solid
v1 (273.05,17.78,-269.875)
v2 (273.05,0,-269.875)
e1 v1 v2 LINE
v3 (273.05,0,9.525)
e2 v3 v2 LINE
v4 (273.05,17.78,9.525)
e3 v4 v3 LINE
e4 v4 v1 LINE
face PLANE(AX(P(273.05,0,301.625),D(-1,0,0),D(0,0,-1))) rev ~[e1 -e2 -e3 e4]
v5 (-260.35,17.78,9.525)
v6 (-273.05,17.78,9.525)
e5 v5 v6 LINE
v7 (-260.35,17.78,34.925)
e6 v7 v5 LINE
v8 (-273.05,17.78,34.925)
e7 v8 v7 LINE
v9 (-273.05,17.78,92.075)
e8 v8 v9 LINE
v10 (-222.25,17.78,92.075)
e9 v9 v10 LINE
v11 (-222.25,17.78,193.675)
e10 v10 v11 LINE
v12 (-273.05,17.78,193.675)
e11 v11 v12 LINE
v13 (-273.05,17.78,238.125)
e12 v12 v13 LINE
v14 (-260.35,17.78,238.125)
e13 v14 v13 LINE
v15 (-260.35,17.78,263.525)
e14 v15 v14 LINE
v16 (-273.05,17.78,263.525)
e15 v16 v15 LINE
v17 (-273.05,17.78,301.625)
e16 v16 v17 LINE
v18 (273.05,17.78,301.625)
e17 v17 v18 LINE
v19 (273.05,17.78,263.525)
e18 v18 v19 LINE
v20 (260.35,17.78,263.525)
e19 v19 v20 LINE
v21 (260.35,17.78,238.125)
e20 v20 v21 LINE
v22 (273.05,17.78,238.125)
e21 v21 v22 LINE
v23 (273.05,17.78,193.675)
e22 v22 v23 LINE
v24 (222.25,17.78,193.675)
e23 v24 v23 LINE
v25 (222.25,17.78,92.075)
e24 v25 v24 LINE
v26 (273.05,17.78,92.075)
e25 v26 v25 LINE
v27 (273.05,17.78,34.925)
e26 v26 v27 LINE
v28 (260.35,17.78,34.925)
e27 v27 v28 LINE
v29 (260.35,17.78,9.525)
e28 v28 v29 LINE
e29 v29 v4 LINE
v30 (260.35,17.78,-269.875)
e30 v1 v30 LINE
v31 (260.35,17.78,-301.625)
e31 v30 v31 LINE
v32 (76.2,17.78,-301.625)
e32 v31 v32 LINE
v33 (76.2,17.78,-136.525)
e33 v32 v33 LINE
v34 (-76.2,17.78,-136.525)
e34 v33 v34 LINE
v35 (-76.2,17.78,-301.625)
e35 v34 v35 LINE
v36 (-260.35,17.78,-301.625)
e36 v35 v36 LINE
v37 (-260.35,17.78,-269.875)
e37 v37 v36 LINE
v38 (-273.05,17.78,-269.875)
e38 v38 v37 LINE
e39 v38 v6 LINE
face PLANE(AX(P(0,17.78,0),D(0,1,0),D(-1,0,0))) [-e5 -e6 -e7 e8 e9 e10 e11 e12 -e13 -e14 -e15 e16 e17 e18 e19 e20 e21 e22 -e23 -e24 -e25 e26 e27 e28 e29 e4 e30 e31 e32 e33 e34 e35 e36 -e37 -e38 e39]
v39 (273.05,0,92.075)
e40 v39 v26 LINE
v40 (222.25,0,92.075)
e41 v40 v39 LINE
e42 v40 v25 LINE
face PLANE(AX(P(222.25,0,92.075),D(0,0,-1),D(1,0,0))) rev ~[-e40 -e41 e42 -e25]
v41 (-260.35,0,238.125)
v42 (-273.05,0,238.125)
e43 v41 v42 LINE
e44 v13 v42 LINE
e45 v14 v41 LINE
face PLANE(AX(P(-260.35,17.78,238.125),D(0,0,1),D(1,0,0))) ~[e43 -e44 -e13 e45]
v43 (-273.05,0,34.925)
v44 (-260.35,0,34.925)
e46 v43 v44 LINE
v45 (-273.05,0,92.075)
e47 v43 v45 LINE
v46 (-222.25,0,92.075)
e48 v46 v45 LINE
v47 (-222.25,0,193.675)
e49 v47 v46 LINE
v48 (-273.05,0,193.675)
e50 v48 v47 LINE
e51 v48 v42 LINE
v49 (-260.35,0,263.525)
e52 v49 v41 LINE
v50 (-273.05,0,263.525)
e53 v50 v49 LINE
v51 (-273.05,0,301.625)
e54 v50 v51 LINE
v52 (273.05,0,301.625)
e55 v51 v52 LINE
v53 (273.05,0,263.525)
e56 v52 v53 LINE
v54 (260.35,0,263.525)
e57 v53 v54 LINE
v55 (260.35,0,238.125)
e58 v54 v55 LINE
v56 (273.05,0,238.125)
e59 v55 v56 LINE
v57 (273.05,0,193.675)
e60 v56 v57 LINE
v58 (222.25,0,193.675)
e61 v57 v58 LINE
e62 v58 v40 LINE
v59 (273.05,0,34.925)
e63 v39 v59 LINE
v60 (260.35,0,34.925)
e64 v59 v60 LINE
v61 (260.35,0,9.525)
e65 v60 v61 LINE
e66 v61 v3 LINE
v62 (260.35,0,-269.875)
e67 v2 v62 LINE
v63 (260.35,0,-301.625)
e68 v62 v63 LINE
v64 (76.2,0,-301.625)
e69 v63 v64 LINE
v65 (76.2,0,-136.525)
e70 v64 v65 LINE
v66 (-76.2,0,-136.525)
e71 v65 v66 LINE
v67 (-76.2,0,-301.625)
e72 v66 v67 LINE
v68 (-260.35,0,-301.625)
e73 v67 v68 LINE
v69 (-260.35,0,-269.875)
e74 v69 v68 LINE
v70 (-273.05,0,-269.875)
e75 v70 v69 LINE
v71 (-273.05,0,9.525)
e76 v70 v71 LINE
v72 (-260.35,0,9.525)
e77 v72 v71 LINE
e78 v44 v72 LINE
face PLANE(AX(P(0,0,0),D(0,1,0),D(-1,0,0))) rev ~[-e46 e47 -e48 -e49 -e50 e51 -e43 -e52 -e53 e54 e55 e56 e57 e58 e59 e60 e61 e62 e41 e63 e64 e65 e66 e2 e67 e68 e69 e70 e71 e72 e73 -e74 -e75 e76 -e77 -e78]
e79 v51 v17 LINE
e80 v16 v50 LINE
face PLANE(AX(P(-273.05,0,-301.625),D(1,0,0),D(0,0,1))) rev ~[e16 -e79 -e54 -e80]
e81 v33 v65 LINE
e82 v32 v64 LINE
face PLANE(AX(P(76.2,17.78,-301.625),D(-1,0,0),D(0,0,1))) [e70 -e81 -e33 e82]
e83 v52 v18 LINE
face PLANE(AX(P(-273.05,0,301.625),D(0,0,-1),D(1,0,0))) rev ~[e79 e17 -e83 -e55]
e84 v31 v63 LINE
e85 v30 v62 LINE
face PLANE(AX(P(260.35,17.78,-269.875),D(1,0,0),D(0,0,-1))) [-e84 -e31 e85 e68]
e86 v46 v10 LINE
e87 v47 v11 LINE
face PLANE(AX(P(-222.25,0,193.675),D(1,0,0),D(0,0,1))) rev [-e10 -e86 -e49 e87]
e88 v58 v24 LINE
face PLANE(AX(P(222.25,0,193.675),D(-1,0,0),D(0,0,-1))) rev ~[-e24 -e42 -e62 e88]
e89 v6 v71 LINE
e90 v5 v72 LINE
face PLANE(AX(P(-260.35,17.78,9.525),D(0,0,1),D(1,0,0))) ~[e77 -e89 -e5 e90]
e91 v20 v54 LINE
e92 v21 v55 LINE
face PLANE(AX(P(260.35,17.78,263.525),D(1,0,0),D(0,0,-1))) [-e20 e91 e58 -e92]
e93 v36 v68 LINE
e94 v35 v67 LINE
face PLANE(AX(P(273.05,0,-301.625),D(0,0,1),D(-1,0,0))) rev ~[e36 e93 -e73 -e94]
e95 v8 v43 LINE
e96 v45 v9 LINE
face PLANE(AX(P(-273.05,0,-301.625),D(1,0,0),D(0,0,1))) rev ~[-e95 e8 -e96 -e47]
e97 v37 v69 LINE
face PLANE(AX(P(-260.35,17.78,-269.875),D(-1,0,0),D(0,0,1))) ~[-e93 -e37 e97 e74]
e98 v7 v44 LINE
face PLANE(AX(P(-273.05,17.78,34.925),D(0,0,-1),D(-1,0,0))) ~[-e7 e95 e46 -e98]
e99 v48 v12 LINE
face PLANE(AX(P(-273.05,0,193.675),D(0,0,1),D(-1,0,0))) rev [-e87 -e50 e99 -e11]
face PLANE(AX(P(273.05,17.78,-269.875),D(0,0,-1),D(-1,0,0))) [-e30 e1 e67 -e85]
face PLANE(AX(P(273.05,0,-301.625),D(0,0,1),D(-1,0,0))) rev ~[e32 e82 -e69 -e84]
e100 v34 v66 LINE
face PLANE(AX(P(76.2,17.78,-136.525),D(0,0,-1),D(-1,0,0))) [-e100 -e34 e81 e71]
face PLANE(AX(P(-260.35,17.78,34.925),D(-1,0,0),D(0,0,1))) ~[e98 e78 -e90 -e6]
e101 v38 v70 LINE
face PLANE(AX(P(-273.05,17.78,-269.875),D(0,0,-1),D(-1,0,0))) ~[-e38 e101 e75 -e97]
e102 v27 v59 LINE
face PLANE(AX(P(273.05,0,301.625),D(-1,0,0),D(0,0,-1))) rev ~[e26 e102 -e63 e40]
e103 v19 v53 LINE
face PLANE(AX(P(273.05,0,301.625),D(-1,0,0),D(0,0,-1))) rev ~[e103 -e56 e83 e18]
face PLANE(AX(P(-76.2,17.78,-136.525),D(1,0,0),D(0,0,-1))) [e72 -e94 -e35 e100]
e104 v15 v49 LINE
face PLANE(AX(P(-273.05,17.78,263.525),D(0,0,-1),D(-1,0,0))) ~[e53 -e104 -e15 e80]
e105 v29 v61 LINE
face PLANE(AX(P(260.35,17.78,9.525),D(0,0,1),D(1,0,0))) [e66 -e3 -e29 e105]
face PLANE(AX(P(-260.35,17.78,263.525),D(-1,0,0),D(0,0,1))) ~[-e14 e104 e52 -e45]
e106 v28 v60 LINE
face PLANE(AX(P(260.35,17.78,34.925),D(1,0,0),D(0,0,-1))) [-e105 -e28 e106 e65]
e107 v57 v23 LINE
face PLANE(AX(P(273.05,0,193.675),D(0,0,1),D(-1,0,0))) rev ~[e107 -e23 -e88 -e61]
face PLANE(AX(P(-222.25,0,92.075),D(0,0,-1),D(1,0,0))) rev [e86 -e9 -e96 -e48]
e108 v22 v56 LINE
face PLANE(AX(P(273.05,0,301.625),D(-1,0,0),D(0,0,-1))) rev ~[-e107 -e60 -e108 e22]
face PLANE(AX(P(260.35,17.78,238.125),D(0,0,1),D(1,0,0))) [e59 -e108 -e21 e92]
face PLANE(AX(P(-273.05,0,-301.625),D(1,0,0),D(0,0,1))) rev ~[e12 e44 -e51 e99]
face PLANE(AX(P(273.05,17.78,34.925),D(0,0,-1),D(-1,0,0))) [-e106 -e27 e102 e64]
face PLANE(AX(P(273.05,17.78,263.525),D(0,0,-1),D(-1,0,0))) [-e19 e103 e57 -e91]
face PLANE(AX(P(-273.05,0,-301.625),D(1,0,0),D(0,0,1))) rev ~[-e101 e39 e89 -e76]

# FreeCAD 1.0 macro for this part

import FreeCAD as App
import Part
import Sketcher

V = App.Vector
Q = App.Units.Quantity


def add_polygon(sketch, points):
    """Adds a closed chain of lines whose ends are joined by coincident constraints."""
    first, n = sketch.GeometryCount, len(points)
    for a, b in zip(points, points[1:] + points[:1]):
        sketch.addGeometry(Part.LineSegment(App.Vector(*a, 0), App.Vector(*b, 0)), False)
    for i in range(n):
        sketch.addConstraint(Sketcher.Constraint("Coincident", first + i, 2, first + (i + 1) % n, 1))

doc = App.newDocument("Part")
body = doc.addObject("PartDesign::Body", "Body")

# Sketch on XZ plane
sketch1 = doc.addObject("Sketcher::SketchObject", "Sketch")
body.addObject(sketch1)
sketch1.AttachmentSupport = (doc.XZ_Plane, [""])
sketch1.MapMode = "FlatFace"
add_polygon(sketch1, [(-273.05, 301.625), (273.05, 301.625), (273.05, -301.625), (-273.05, -301.625)])  # lines 0-3
sketch1.addConstraint([
    Sketcher.Constraint("Horizontal", 0),
    Sketcher.Constraint("Vertical", 1),
    Sketcher.Constraint("Horizontal", 2),
    Sketcher.Constraint("Vertical", 3),
    Sketcher.Constraint("Symmetric", 0, 2, 2, 2, -1, 1),
    Sketcher.Constraint("DistanceX", 0, 1, 0, 2, Q("21.5 in")),
    Sketcher.Constraint("DistanceY", 1, 2, 1, 1, Q("23.75 in")),
])
pad1 = doc.addObject("PartDesign::Pad", "Pad")
body.addObject(pad1)
pad1.Profile = sketch1
pad1.Length = Q("0.7 in")
pad1.Reversed = True

# Sketch on XZ plane
sketch2 = doc.addObject("Sketcher::SketchObject", "Sketch001")
body.addObject(sketch2)
sketch2.AttachmentSupport = (doc.XZ_Plane, [""])
sketch2.MapMode = "FlatFace"
add_polygon(sketch2, [(273.05, 92.075), (273.05, 193.675), (222.25, 193.675), (222.25, 92.075)])  # lines 0-3
sketch2.addConstraint([
    Sketcher.Constraint("Vertical", 0),
    Sketcher.Constraint("Horizontal", 1),
    Sketcher.Constraint("Vertical", 2),
    Sketcher.Constraint("Horizontal", 3),
    Sketcher.Constraint("DistanceX", 1, 2, 1, 1, Q("2 in")),
    Sketcher.Constraint("DistanceY", 0, 1, 0, 2, Q("4 in")),
    Sketcher.Constraint("DistanceX", -1, 1, 0, 2, Q("10.75 in")),
    Sketcher.Constraint("DistanceY", -1, 1, 0, 2, Q("7.625 in")),
])
pocket1 = doc.addObject("PartDesign::Pocket", "Pocket")
body.addObject(pocket1)
pocket1.Profile = sketch2
pocket1.Type = "ThroughAll"
doc.recompute()

mirrored = doc.addObject("PartDesign::Mirrored", "Mirrored")
body.addObject(mirrored)
mirrored.Originals = [pocket1]
mirrored.MirrorPlane = (doc.YZ_Plane, [""])
body.Tip = mirrored

# Sketch on XZ plane
sketch3 = doc.addObject("Sketcher::SketchObject", "Sketch002")
body.addObject(sketch3)
sketch3.AttachmentSupport = (doc.XZ_Plane, [""])
sketch3.MapMode = "FlatFace"
sketch3.AttachmentOffset = App.Placement(V(0, 0, -0.7 * 25.4), App.Rotation())
add_polygon(sketch3, [(260.35, 263.525), (273.05, 263.525), (273.05, 238.125), (260.35, 238.125)])  # lines 0-3
sketch3.addConstraint([
    Sketcher.Constraint("Horizontal", 0),
    Sketcher.Constraint("Vertical", 1),
    Sketcher.Constraint("Horizontal", 2),
    Sketcher.Constraint("Vertical", 3),
    Sketcher.Constraint("DistanceY", 1, 2, 1, 1, Q("1 in")),
    Sketcher.Constraint("DistanceX", 0, 1, 0, 2, Q("0.5 in")),
    Sketcher.Constraint("DistanceX", -1, 1, 0, 2, Q("10.75 in")),
    Sketcher.Constraint("DistanceY", -1, 1, 0, 2, Q("10.375 in")),
])
pocket2 = doc.addObject("PartDesign::Pocket", "Pocket001")
body.addObject(pocket2)
pocket2.Profile = sketch3
pocket2.Type = "ThroughAll"
pocket2.Reversed = True
doc.recompute()

mirrored2 = doc.addObject("PartDesign::Mirrored", "Mirrored001")
body.addObject(mirrored2)
mirrored2.Originals = [pocket2]
mirrored2.MirrorPlane = (doc.YZ_Plane, [""])
body.Tip = mirrored2

# Sketch on XZ plane
sketch4 = doc.addObject("Sketcher::SketchObject", "Sketch003")
body.addObject(sketch4)
sketch4.AttachmentSupport = (doc.XZ_Plane, [""])
sketch4.MapMode = "FlatFace"
sketch4.AttachmentOffset = App.Placement(V(0, 0, -0.7 * 25.4), App.Rotation())
add_polygon(sketch4, [(260.35, 34.925), (273.05, 34.925), (273.05, 9.525), (260.35, 9.525)])  # lines 0-3
sketch4.addConstraint([
    Sketcher.Constraint("Horizontal", 0),
    Sketcher.Constraint("Vertical", 1),
    Sketcher.Constraint("Horizontal", 2),
    Sketcher.Constraint("Vertical", 3),
    Sketcher.Constraint("DistanceY", 1, 2, 1, 1, Q("1 in")),
    Sketcher.Constraint("DistanceX", 0, 1, 0, 2, Q("0.5 in")),
    Sketcher.Constraint("DistanceX", -1, 1, 0, 2, Q("10.75 in")),
    Sketcher.Constraint("DistanceY", -1, 1, 0, 2, Q("1.375 in")),
])
pocket3 = doc.addObject("PartDesign::Pocket", "Pocket002")
body.addObject(pocket3)
pocket3.Profile = sketch4
pocket3.Type = "ThroughAll"
pocket3.Reversed = True
doc.recompute()

mirrored3 = doc.addObject("PartDesign::Mirrored", "Mirrored002")
body.addObject(mirrored3)
mirrored3.Originals = [pocket3]
mirrored3.MirrorPlane = (doc.YZ_Plane, [""])
body.Tip = mirrored3

# Sketch on XZ plane
sketch5 = doc.addObject("Sketcher::SketchObject", "Sketch004")
body.addObject(sketch5)
sketch5.AttachmentSupport = (doc.XZ_Plane, [""])
sketch5.MapMode = "FlatFace"
sketch5.AttachmentOffset = App.Placement(V(0, 0, -0.7 * 25.4), App.Rotation())
add_polygon(sketch5, [(260.35, -269.875), (273.05, -269.875), (273.05, -301.625), (260.35, -301.625)])  # lines 0-3
sketch5.addConstraint([
    Sketcher.Constraint("Horizontal", 0),
    Sketcher.Constraint("Vertical", 1),
    Sketcher.Constraint("Horizontal", 2),
    Sketcher.Constraint("Vertical", 3),
    Sketcher.Constraint("DistanceX", 0, 1, 0, 2, Q("0.5 in")),
    Sketcher.Constraint("DistanceY", 1, 2, 1, 1, Q("1.25 in")),
    Sketcher.Constraint("DistanceX", -1, 1, 0, 2, Q("10.75 in")),
    Sketcher.Constraint("DistanceY", 0, 2, -1, 1, Q("10.625 in")),
])
pocket4 = doc.addObject("PartDesign::Pocket", "Pocket003")
body.addObject(pocket4)
pocket4.Profile = sketch5
pocket4.Type = "ThroughAll"
pocket4.Reversed = True
doc.recompute()

mirrored4 = doc.addObject("PartDesign::Mirrored", "Mirrored003")
body.addObject(mirrored4)
mirrored4.Originals = [pocket4]
mirrored4.MirrorPlane = (doc.YZ_Plane, [""])
body.Tip = mirrored4

# Sketch on XZ plane
sketch6 = doc.addObject("Sketcher::SketchObject", "Sketch005")
body.addObject(sketch6)
sketch6.AttachmentSupport = (doc.XZ_Plane, [""])
sketch6.MapMode = "FlatFace"
sketch6.AttachmentOffset = App.Placement(V(0, 0, -0.7 * 25.4), App.Rotation())
add_polygon(sketch6, [(76.2, -301.625), (-76.2, -301.625), (-76.2, -136.525), (76.2, -136.525)])  # lines 0-3
sketch6.addConstraint([
    Sketcher.Constraint("Horizontal", 0),
    Sketcher.Constraint("Vertical", 1),
    Sketcher.Constraint("Horizontal", 2),
    Sketcher.Constraint("Vertical", 3),
    Sketcher.Constraint("DistanceY", 1, 1, 1, 2, Q("6.5 in")),
    Sketcher.Constraint("DistanceX", 0, 2, -1, 1, Q("3 in")),
    Sketcher.Constraint("DistanceX", -1, 1, 2, 2, Q("3 in")),
    Sketcher.Constraint("DistanceY", 0, 2, -1, 1, Q("11.875 in")),
])
pocket5 = doc.addObject("PartDesign::Pocket", "Pocket004")
body.addObject(pocket5)
pocket5.Profile = sketch6
pocket5.Type = "ThroughAll"
pocket5.Reversed = True

doc.recompute()
